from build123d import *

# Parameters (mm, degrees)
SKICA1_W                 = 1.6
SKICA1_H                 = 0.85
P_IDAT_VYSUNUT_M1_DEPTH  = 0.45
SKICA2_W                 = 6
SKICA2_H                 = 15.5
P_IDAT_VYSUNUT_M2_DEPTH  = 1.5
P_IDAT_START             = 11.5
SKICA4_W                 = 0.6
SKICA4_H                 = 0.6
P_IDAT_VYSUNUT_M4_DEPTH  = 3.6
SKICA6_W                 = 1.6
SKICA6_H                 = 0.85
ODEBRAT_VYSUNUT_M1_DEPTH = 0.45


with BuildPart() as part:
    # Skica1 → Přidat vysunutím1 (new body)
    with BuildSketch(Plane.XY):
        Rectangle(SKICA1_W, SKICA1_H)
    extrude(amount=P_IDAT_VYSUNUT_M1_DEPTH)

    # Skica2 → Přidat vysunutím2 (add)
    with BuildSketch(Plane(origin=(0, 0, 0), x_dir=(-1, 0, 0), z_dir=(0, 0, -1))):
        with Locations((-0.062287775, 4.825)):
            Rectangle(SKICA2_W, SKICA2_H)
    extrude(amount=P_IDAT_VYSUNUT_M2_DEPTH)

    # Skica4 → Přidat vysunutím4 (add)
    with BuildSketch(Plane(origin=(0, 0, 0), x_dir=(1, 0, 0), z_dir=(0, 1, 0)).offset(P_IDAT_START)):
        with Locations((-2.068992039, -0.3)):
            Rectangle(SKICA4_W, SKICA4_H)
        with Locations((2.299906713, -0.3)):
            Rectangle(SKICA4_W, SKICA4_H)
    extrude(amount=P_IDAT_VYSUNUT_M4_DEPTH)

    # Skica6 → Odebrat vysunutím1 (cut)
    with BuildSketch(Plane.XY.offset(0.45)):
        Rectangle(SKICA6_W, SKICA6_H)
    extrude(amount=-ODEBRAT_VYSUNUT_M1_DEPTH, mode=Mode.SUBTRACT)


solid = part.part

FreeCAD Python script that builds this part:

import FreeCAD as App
import Part
import Sketcher
Q = App.Units.Quantity


def add_polygon(sketch, points):
    """Adds a closed chain of lines whose ends are joined by coincident constraints."""
    first, n = sketch.GeometryCount, len(points)
    for a, b in zip(points, points[1:] + points[:1]):
        sketch.addGeometry(Part.LineSegment(App.Vector(*a, 0), App.Vector(*b, 0)), False)
    for i in range(n):
        sketch.addConstraint(Sketcher.Constraint("Coincident", first + i, 2, first + (i + 1) % n, 1))

doc = App.newDocument("Part")
body = doc.addObject("PartDesign::Body", "Body")

# Sketch on XY plane
sketch1 = body.newObject("Sketcher::SketchObject", "Sketch")
sketch1.AttachmentSupport = (doc.getObject("XY_Plane"), [""])
sketch1.MapMode = "FlatFace"
add_polygon(sketch1, [(-0.8, 0.4), (-0.8, -0.4), (0.8, -0.4), (0.8, 0.4)])  # lines 0-3
sketch1.addConstraint([
    Sketcher.Constraint("Vertical", 0),
    Sketcher.Constraint("Horizontal", 1),
    Sketcher.Constraint("Vertical", 2),
    Sketcher.Constraint("Horizontal", 3),
    Sketcher.Constraint("Symmetric", 0, 2, 2, 2, -1, 1),
    Sketcher.Constraint("DistanceX", 1, 1, 1, 2, Q("1.6 mm")),
    Sketcher.Constraint("DistanceY", 0, 2, 0, 1, Q("0.85 mm")),
])
pad1 = body.newObject("PartDesign::Pad", "Pad")
pad1.Profile = sketch1
pad1.Length = 0.45

# Sketch on XY plane
sketch2 = body.newObject("Sketcher::SketchObject", "Sketch001")
sketch2.AttachmentSupport = (doc.getObject("XY_Plane"), [""])
sketch2.MapMode = "FlatFace"
add_polygon(sketch2, [(3, 13), (3, -3), (-3, -3), (-3, 13)])  # lines 0-3
sketch2.addConstraint([
    Sketcher.Constraint("Vertical", 0),
    Sketcher.Constraint("Horizontal", 1),
    Sketcher.Constraint("Vertical", 2),
    Sketcher.Constraint("Horizontal", 3),
    Sketcher.Constraint("DistanceX", 1, 2, 1, 1, Q("6 mm")),
    Sketcher.Constraint("DistanceY", 0, 2, 0, 1, Q("15.5 mm")),
    Sketcher.Constraint("DistanceY", 0, 2, -1, 1, Q("2.925 mm")),
    Sketcher.Constraint("DistanceX", -1, 1, 0, 2, Q("3.062288 mm")),
])
pad2 = body.newObject("PartDesign::Pad", "Pad001")
pad2.Profile = sketch2
pad2.Length = 1.5
pad2.Reversed = True

# Sketch on XZ plane
sketch3 = body.newObject("Sketcher::SketchObject", "Sketch002")
sketch3.AttachmentSupport = (doc.getObject("XZ_Plane"), [""])
sketch3.MapMode = "FlatFace"
sketch3.AttachmentOffset = App.Placement(App.Vector(0, 0, -11.5), App.Rotation())
add_polygon(sketch3, [(-2.4, 0), (-2.4, 0.6), (-1.8, 0.6), (-1.8, 0)])  # lines 0-3
add_polygon(sketch3, [(2, 0), (2, 0.6), (2.6, 0.6), (2.6, 0)])  # lines 4-7
sketch3.addConstraint([
    Sketcher.Constraint("Vertical", 0),
    Sketcher.Constraint("Horizontal", 1),
    Sketcher.Constraint("Vertical", 2),
    Sketcher.Constraint("Horizontal", 3),
    Sketcher.Constraint("Vertical", 4),
    Sketcher.Constraint("Horizontal", 5),
    Sketcher.Constraint("Vertical", 6),
    Sketcher.Constraint("Horizontal", 7),
    Sketcher.Constraint("PointOnObject", 2, 2, -1),
    Sketcher.Constraint("PointOnObject", 6, 2, -1),
    Sketcher.Constraint("Horizontal", 1, 2, 4, 2),
    Sketcher.Constraint("Equal", 3, 5),
    Sketcher.Constraint("Equal", 7, 0),
    Sketcher.Constraint("DistanceX", 1, 1, 1, 2, Q("0.6 mm")),
    Sketcher.Constraint("DistanceX", 1, 2, 4, 2, Q("3.768899 mm")),
    Sketcher.Constraint("DistanceX", 0, 2, -1, 1, Q("2.368992 mm")),
])
pad3 = body.newObject("PartDesign::Pad", "Pad002")
pad3.Profile = sketch3
pad3.Length = 3.6
pad3.Reversed = True

# Sketch on XY plane
sketch4 = body.newObject("Sketcher::SketchObject", "Sketch003")
sketch4.AttachmentSupport = (doc.getObject("XY_Plane"), [""])
sketch4.MapMode = "FlatFace"
sketch4.AttachmentOffset = App.Placement(App.Vector(0, 0, 0.45), App.Rotation())
add_polygon(sketch4, [(-0.8, 0.4), (-0.8, -0.4), (0.8, -0.4), (0.8, 0.4)])  # lines 0-3
sketch4.addConstraint([
    Sketcher.Constraint("Vertical", 0),
    Sketcher.Constraint("Horizontal", 1),
    Sketcher.Constraint("Vertical", 2),
    Sketcher.Constraint("Horizontal", 3),
    Sketcher.Constraint("Symmetric", 0, 2, 2, 2, -1, 1),
    Sketcher.Constraint("DistanceX", 1, 1, 1, 2, Q("1.6 mm")),
    Sketcher.Constraint("DistanceY", 0, 2, 0, 1, Q("0.85 mm")),
])
pocket1 = body.newObject("PartDesign::Pocket", "Pocket")
pocket1.Profile = sketch4
pocket1.Length = 0.45

doc.recompute()
